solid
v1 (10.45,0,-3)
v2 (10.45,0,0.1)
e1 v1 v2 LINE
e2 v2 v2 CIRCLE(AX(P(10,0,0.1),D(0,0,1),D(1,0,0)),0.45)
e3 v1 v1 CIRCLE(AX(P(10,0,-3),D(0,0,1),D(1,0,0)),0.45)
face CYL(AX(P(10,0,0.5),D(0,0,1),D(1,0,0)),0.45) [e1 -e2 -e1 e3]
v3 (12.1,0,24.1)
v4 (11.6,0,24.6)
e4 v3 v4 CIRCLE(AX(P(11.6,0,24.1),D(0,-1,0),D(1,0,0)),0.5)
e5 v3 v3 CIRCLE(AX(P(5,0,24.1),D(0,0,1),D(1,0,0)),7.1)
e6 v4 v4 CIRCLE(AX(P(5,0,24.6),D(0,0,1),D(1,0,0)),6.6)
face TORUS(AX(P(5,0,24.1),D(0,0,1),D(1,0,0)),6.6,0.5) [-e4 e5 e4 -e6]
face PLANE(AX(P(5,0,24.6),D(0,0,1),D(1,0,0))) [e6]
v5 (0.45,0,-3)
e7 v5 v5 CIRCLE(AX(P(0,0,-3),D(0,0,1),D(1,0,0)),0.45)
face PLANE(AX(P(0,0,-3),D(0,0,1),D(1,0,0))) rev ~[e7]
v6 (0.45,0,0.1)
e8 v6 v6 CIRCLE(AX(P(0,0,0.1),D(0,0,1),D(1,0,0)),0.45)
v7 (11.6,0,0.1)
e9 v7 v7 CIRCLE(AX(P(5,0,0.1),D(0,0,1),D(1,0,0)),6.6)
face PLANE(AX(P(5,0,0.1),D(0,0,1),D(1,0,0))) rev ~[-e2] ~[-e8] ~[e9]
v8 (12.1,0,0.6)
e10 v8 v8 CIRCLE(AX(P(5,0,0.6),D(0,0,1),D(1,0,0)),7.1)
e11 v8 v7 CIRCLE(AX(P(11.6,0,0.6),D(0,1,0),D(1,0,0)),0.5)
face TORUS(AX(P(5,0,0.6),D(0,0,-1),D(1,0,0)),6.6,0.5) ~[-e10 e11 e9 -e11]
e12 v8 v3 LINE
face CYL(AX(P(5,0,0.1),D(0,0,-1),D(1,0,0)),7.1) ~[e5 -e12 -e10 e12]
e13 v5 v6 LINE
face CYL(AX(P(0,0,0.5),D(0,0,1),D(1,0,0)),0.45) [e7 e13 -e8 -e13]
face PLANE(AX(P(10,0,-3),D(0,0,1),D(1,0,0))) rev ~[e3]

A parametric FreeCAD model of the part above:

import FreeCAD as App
import Part
import Sketcher

V = App.Vector


def edges_at(feature, points):
    """Names of the edges that pass closest to the given points."""
    edges = feature.Shape.Edges
    near = lambda p: min(range(len(edges)), key=lambda i: edges[i].distToShape(Part.Vertex(*p))[0])
    return sorted({f"Edge{near(p) + 1}" for p in points})

doc = App.newDocument("Part")
params = doc.addObject("Spreadsheet::Sheet", "Params")
for row, (alias, value) in enumerate([
    ("sketch1_diameter", "0.9 mm"),
    ("pad1_length", "12.25 mm"),
    ("pad1_length2", "3.5 mm"),
    ("sketch2_diameter", "14.2 mm"),
    ("pad2_length", "24.5 mm"),
    ("fillet_radius", "0.5 mm"),
], start=1):
    params.set(f"A{row}", alias)
    params.set(f"B{row}", "=" + value)
    params.setAlias(f"B{row}", alias)

body = doc.addObject("PartDesign::Body", "Body")
body.AllowCompound = True

sketch1 = body.newObject("Sketcher::SketchObject", "Sketch")
sketch1.AttachmentSupport = (doc.getObject("XY_Plane"), [""])
sketch1.MapMode = "FlatFace"
sketch1.AttachmentOffset = App.Placement(V(0, 0, 0.5), App.Rotation())
sketch1.addGeometry([
    Part.Circle(V(0, 0, 0), V(0, 0, 1), 0.45),
    Part.Circle(V(10, 0, 0), V(0, 0, 1), 0.45),
], False)
sketch1.addConstraint([
    Sketcher.Constraint("Coincident", 0, 3, -1, 1),
    Sketcher.Constraint("Equal", 0, 1),
    Sketcher.Constraint("PointOnObject", 1, 3, -1),
    Sketcher.Constraint("Diameter", 0, 0.9),
    Sketcher.Constraint("DistanceX", -1, 1, 1, 3, 10.0),
])
sketch1.setExpression("Constraints[3]", "Params.sketch1_diameter")
pad1 = body.newObject("PartDesign::Pad", "Pad")
pad1.Profile = sketch1
pad1.Type = "TwoLengths"
pad1.setExpression("Length", "Params.pad1_length")
pad1.setExpression("Length2", "Params.pad1_length2")
body2 = doc.addObject("PartDesign::Body", "Body001")

sketch2 = body2.newObject("Sketcher::SketchObject", "Sketch001")
sketch2.AttachmentSupport = (doc.getObject("XY_Plane001"), [""])
sketch2.MapMode = "FlatFace"
sketch2.AttachmentOffset = App.Placement(V(0, 0, 0.1), App.Rotation())
sketch2.addGeometry(Part.Circle(V(5, 0, 0), V(0, 0, 1), 7.1), False)
sketch2.addConstraint([
    Sketcher.Constraint("PointOnObject", 0, 3, -1),
    Sketcher.Constraint("Diameter", 0, 14.2),
    Sketcher.Constraint("DistanceX", -1, 1, 0, 3, 5.0),
])
sketch2.setExpression("Constraints[1]", "Params.sketch2_diameter")
pad2 = body2.newObject("PartDesign::Pad", "Pad001")
pad2.Profile = sketch2
pad2.setExpression("Length", "Params.pad2_length")
doc.recompute()

fillet = body2.newObject("PartDesign::Fillet", "Fillet")
fillet.Base = (pad2, edges_at(pad2, [(-2.1, 0, 0.1), (-2.1, 0, 24.6)]))
fillet.setExpression("Radius", "Params.fillet_radius")
doc.recompute()

boolean = body2.newObject("PartDesign::Boolean", "Boolean")
boolean.Type = "Fuse"
boolean.addObjects([body])

doc.recompute()
